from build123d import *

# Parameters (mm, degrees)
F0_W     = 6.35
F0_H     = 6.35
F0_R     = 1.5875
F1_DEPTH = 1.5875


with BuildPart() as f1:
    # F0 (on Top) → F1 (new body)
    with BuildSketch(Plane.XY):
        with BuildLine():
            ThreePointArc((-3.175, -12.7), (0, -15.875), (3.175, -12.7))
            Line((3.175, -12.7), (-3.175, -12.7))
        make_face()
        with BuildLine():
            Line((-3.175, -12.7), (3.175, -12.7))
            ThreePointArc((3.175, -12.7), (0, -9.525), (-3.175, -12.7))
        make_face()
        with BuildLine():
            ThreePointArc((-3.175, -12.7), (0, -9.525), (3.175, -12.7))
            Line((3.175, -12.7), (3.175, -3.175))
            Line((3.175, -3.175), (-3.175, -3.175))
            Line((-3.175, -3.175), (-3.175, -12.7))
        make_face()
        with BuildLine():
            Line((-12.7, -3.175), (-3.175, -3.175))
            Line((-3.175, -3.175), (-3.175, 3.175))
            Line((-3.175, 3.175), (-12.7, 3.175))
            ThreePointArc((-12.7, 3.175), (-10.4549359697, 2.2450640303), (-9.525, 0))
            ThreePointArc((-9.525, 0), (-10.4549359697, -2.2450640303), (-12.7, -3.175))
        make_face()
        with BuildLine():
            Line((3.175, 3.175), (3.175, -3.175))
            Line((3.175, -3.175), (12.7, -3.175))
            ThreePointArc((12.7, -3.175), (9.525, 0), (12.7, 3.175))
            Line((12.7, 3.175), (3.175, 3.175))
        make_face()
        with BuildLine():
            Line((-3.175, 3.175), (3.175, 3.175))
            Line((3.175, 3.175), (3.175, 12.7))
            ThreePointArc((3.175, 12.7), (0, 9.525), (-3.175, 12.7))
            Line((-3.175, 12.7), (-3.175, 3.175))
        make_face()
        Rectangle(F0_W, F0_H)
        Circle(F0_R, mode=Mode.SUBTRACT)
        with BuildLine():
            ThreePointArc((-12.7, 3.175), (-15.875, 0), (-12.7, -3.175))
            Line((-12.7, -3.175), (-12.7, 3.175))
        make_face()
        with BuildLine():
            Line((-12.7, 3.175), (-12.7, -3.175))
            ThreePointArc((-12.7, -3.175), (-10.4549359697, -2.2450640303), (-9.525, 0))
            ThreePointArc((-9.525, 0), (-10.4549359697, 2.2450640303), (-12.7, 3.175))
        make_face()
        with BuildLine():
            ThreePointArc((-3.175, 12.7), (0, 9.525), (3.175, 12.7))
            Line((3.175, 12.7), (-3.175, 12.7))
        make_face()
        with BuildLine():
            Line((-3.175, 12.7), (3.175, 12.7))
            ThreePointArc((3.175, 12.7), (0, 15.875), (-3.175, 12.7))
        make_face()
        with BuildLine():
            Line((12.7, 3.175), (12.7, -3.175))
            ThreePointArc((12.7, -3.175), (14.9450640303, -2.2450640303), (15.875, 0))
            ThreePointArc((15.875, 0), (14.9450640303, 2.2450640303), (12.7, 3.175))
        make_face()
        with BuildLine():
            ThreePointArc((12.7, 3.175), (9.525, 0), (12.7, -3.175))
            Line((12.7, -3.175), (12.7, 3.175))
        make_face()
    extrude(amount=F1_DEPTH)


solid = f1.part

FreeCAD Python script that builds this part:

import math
import FreeCAD as App
import Part
import Sketcher

V = App.Vector
Q = App.Units.Quantity

doc = App.newDocument("Part")
body = doc.addObject("PartDesign::Body", "Body")

# Sketch on XY plane
sketch1 = body.newObject("Sketcher::SketchObject", "Sketch")
sketch1.AttachmentSupport = (doc.getObject("XY_Plane"), [""])
sketch1.MapMode = "FlatFace"
sketch1.addGeometry([
    Part.ArcOfCircle(Part.Circle(V(0, -12.7, 0), V(0, 0, 1), 3.2), math.radians(180), math.radians(360)),  # 0
    Part.LineSegment(V(3.2, -12.7, 0), V(3.2, -3.2, 0)),  # 1
    Part.LineSegment(V(3.2, -3.2, 0), V(12.7, -3.2, 0)),  # 2
    Part.ArcOfCircle(Part.Circle(V(12.7, 0, 0), V(0, 0, 1), 3.2), math.radians(-90), math.radians(0)),  # 3
    Part.ArcOfCircle(Part.Circle(V(12.7, 0, 0), V(0, 0, 1), 3.2), math.radians(0), math.radians(90)),  # 4
    Part.LineSegment(V(12.7, 3.2, 0), V(3.2, 3.2, 0)),  # 5
    Part.LineSegment(V(3.2, 3.2, 0), V(3.2, 12.7, 0)),  # 6
    Part.ArcOfCircle(Part.Circle(V(0, 12.7, 0), V(0, 0, 1), 3.2), math.radians(0), math.radians(180)),  # 7
    Part.LineSegment(V(-3.2, 12.7, 0), V(-3.2, 3.2, 0)),  # 8
    Part.LineSegment(V(-3.2, 3.2, 0), V(-12.7, 3.2, 0)),  # 9
    Part.ArcOfCircle(Part.Circle(V(-12.7, 0, 0), V(0, 0, 1), 3.2), math.radians(90), math.radians(270)),  # 10
    Part.LineSegment(V(-12.7, -3.2, 0), V(-3.2, -3.2, 0)),  # 11
    Part.LineSegment(V(-3.2, -3.2, 0), V(-3.2, -12.7, 0)),  # 12
    Part.Circle(V(0, 0, 0), V(0, 0, 1), 1.6),  # 13
], False)
sketch1.addConstraint([
    Sketcher.Constraint("Tangent", 0, 2, 1, 1),
    Sketcher.Constraint("Coincident", 1, 2, 2, 1),
    Sketcher.Constraint("Tangent", 2, 2, 3, 1),
    Sketcher.Constraint("Tangent", 3, 2, 4, 1),
    Sketcher.Constraint("Tangent", 4, 2, 5, 1),
    Sketcher.Constraint("Coincident", 5, 2, 6, 1),
    Sketcher.Constraint("Tangent", 6, 2, 7, 1),
    Sketcher.Constraint("Tangent", 7, 2, 8, 1),
    Sketcher.Constraint("Coincident", 8, 2, 9, 1),
    Sketcher.Constraint("Tangent", 9, 2, 10, 1),
    Sketcher.Constraint("Tangent", 10, 2, 11, 1),
    Sketcher.Constraint("Coincident", 11, 2, 12, 1),
    Sketcher.Constraint("Tangent", 12, 2, 0, 1),
    Sketcher.Constraint("Vertical", 1),
    Sketcher.Constraint("Horizontal", 2),
    Sketcher.Constraint("Horizontal", 5),
    Sketcher.Constraint("Vertical", 6),
    Sketcher.Constraint("Vertical", 8),
    Sketcher.Constraint("Horizontal", 9),
    Sketcher.Constraint("Horizontal", 11),
    Sketcher.Constraint("Vertical", 12),
    Sketcher.Constraint("Coincident", 13, 3, -1, 1),
    Sketcher.Constraint("Equal", 0, 3),
    Sketcher.Constraint("Equal", 3, 4),
    Sketcher.Constraint("Equal", 4, 7),
    Sketcher.Constraint("Equal", 7, 10),
    Sketcher.Constraint("Symmetric", 0, 3, 7, 3, -1, 1),
    Sketcher.Constraint("Symmetric", 3, 3, 10, 3, -1, 1),
    Sketcher.Constraint("Symmetric", 5, 2, 8, 2, -2),
    Sketcher.Constraint("PointOnObject", 3, 2, -1),
    Sketcher.Constraint("Equal", 11, 1),
    Sketcher.Constraint("Diameter", 13, Q("0.125 in")),
    Sketcher.Constraint("Radius", 0, Q("0.125 in")),
    Sketcher.Constraint("DistanceY", 0, 3, 7, 3, Q("1 in")),
])
pad1 = body.newObject("PartDesign::Pad", "Pad")
pad1.Profile = sketch1
pad1.Length = Q("0.0625 in")

doc.recompute()
